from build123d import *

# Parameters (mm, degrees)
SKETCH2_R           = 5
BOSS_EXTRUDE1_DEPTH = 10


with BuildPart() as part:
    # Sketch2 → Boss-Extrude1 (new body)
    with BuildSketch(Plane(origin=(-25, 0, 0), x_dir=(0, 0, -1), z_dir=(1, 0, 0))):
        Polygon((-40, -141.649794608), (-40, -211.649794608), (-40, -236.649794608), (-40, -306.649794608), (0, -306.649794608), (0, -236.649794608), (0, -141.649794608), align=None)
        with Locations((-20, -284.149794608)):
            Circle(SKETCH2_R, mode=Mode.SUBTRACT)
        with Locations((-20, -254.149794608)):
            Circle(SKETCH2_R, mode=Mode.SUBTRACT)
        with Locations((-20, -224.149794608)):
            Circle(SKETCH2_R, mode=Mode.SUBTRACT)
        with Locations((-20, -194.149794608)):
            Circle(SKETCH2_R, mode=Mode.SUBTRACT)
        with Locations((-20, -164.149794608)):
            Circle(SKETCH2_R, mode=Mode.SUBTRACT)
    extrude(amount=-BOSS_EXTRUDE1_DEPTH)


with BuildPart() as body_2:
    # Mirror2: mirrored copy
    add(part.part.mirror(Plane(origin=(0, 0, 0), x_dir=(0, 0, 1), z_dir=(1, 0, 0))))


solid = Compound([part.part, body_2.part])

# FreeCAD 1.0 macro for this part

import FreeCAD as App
import Part
import Sketcher
from FreeCAD import Vector
Q = App.Units.Quantity

doc = App.newDocument("Part")
body = doc.addObject("PartDesign::Body", "Body")

# Sketch on YZ plane
sketch1 = body.newObject("Sketcher::SketchObject", "Sketch")
sketch1.AttachmentSupport = (doc.getObject("YZ_Plane"), [""])
sketch1.MapMode = "FlatFace"
sketch1.AttachmentOffset = App.Placement(Vector(0, 0, -25), App.Rotation())
sketch1.addGeometry(Part.LineSegment(Vector(-142, 40, 0), Vector(-307, 40, 0)), False)
sketch1.addGeometry(Part.LineSegment(Vector(-307, 40, 0), Vector(-307, 0, 0)), False)
sketch1.addGeometry(Part.LineSegment(Vector(-307, 0, 0), Vector(-142, 0, 0)), False)
sketch1.addGeometry(Part.LineSegment(Vector(-142, 0, 0), Vector(-142, 40, 0)), False)
sketch1.addGeometry(Part.Circle(Vector(-284, 20, 0), Vector(0, 0, 1), 5), False)
sketch1.addGeometry(Part.Circle(Vector(-254, 20, 0), Vector(0, 0, 1), 5), False)
sketch1.addGeometry(Part.Circle(Vector(-224, 20, 0), Vector(0, 0, 1), 5), False)
sketch1.addGeometry(Part.Circle(Vector(-194, 20, 0), Vector(0, 0, 1), 5), False)
sketch1.addGeometry(Part.Circle(Vector(-164, 20, 0), Vector(0, 0, 1), 5), False)
sketch1.addConstraint(Sketcher.Constraint("Coincident", 0, 2, 1, 1))
sketch1.addConstraint(Sketcher.Constraint("Coincident", 1, 2, 2, 1))
sketch1.addConstraint(Sketcher.Constraint("Coincident", 2, 2, 3, 1))
sketch1.addConstraint(Sketcher.Constraint("Coincident", 3, 2, 0, 1))
sketch1.addConstraint(Sketcher.Constraint("Horizontal", 0))
sketch1.addConstraint(Sketcher.Constraint("Vertical", 1))
sketch1.addConstraint(Sketcher.Constraint("Horizontal", 2))
sketch1.addConstraint(Sketcher.Constraint("Vertical", 3))
sketch1.addConstraint(Sketcher.Constraint("Equal", 4, 5))
sketch1.addConstraint(Sketcher.Constraint("Equal", 5, 6))
sketch1.addConstraint(Sketcher.Constraint("Equal", 6, 7))
sketch1.addConstraint(Sketcher.Constraint("Equal", 7, 8))
sketch1.addConstraint(Sketcher.Constraint("PointOnObject", 1, 2, -1))
sketch1.addConstraint(Sketcher.Constraint("Horizontal", 4, 3, 5, 3))
sketch1.addConstraint(Sketcher.Constraint("Horizontal", 5, 3, 6, 3))
sketch1.addConstraint(Sketcher.Constraint("Horizontal", 6, 3, 7, 3))
sketch1.addConstraint(Sketcher.Constraint("Horizontal", 7, 3, 8, 3))
sketch1.addConstraint(Sketcher.Constraint("Diameter", 4, Q("10 mm")))
sketch1.addConstraint(Sketcher.Constraint("DistanceX", 0, 2, 0, 1, Q("165 mm")))
sketch1.addConstraint(Sketcher.Constraint("DistanceY", 1, 2, 1, 1, Q("40 mm")))
sketch1.addConstraint(Sketcher.Constraint("DistanceY", -1, 1, 4, 3, Q("20 mm")))
sketch1.addConstraint(Sketcher.Constraint("DistanceX", 4, 3, 5, 3, Q("30 mm")))
sketch1.addConstraint(Sketcher.Constraint("DistanceX", 5, 3, 6, 3, Q("30 mm")))
sketch1.addConstraint(Sketcher.Constraint("DistanceX", 6, 3, 7, 3, Q("30 mm")))
sketch1.addConstraint(Sketcher.Constraint("DistanceX", 7, 3, 8, 3, Q("30 mm")))
sketch1.addConstraint(Sketcher.Constraint("DistanceX", 0, 2, 4, 3, Q("22.5 mm")))
sketch1.addConstraint(Sketcher.Constraint("DistanceX", 4, 3, -1, 1, Q("284.149795 mm")))
pad1 = body.newObject("PartDesign::Pad", "Pad")
pad1.Profile = sketch1
pad1.Length = 10
pad1.Reversed = True
body2 = doc.addObject("PartDesign::Body", "Body001")
doc.recompute()

mirroring = doc.addObject("Part::Mirroring", "Mirroring")
mirroring.Source = body
mirroring.Base = Vector(0, 0, 0)
mirroring.Normal = Vector(1, 0, 0)
body2.BaseFeature = mirroring
doc.recompute()
mirroring.Visibility = False

doc.recompute()
